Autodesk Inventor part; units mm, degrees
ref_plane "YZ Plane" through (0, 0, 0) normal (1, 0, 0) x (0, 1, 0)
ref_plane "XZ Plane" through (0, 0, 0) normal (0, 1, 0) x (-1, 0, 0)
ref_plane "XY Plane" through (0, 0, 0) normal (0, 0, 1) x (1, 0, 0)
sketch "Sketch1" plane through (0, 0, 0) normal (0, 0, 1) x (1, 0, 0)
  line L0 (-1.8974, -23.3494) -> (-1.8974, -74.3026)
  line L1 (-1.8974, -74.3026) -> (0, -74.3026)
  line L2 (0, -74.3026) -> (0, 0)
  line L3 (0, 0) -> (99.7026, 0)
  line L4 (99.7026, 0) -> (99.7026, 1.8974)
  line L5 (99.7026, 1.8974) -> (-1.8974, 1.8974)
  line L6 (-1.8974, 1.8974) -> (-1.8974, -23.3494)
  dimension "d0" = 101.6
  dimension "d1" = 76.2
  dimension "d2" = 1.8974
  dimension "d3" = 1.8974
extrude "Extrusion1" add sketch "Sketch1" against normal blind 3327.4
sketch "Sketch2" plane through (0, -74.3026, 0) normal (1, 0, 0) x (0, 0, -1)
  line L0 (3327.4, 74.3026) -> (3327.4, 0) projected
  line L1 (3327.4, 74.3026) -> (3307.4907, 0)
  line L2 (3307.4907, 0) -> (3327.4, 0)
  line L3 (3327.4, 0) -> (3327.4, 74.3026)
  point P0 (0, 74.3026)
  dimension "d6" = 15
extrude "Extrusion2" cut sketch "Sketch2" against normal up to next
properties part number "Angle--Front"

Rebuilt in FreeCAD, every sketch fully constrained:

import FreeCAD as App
import Part
import Sketcher

V = App.Vector
Q = App.Units.Quantity


def add_polygon(sketch, points):
    """Adds a closed chain of lines whose ends are joined by coincident constraints."""
    first, n = sketch.GeometryCount, len(points)
    for a, b in zip(points, points[1:] + points[:1]):
        sketch.addGeometry(Part.LineSegment(App.Vector(*a, 0), App.Vector(*b, 0)), False)
    for i in range(n):
        sketch.addConstraint(Sketcher.Constraint("Coincident", first + i, 2, first + (i + 1) % n, 1))

doc = App.newDocument("Part")
body = doc.addObject("PartDesign::Body", "Body")

# Sketch on XY plane
sketch1 = body.newObject("Sketcher::SketchObject", "Sketch")
sketch1.AttachmentSupport = (doc.getObject("XY_Plane"), [""])
sketch1.MapMode = "FlatFace"
add_polygon(sketch1, [(-1.8974, 1.8974), (-1.8974, -74.3026), (0, -74.3026), (0, 0), (99.7026, 0), (99.7026, 1.8974)])  # lines 0-5
sketch1.addConstraint([
    Sketcher.Constraint("Vertical", 0),
    Sketcher.Constraint("Horizontal", 1),
    Sketcher.Constraint("Vertical", 2),
    Sketcher.Constraint("Horizontal", 3),
    Sketcher.Constraint("Vertical", 4),
    Sketcher.Constraint("Horizontal", 5),
    Sketcher.Constraint("Coincident", 2, 2, -1, 1),
    Sketcher.Constraint("Equal", 1, 4),
    Sketcher.Constraint("DistanceX", 5, 2, 5, 1, Q("4 in")),
    Sketcher.Constraint("DistanceY", 0, 2, 0, 1, Q("3 in")),
    Sketcher.Constraint("DistanceX", 1, 1, 1, 2, Q("0.0747 in")),
])
pad1 = body.newObject("PartDesign::Pad", "Pad")
pad1.Profile = sketch1
pad1.Length = Q("131 in")
pad1.Reversed = True

# Sketch on YZ plane
sketch2 = body.newObject("Sketcher::SketchObject", "Sketch001")
sketch2.AttachmentSupport = (doc.getObject("YZ_Plane"), [""])
sketch2.MapMode = "FlatFace"
add_polygon(sketch2, [(-74.3026, -3327.4), (0, -3327.4), (-74.3026, -3307.4907)])  # lines 0-2
sketch2.addConstraint([
    Sketcher.Constraint("Horizontal", 0),
    Sketcher.Constraint("Vertical", 2),
    Sketcher.Constraint("PointOnObject", 0, 2, -2),
    Sketcher.Constraint("DistanceY", 0, 2, -1, 1, Q("131 in")),
    Sketcher.Constraint("Angle", 1, Q("165 deg")),
    Sketcher.Constraint("DistanceX", 0, 1, 0, 2, Q("2.9253 in")),
])
pocket1 = body.newObject("PartDesign::Pocket", "Pocket")
pocket1.Profile = sketch2
pocket1.Type = "UpToFirst"

doc.recompute()
